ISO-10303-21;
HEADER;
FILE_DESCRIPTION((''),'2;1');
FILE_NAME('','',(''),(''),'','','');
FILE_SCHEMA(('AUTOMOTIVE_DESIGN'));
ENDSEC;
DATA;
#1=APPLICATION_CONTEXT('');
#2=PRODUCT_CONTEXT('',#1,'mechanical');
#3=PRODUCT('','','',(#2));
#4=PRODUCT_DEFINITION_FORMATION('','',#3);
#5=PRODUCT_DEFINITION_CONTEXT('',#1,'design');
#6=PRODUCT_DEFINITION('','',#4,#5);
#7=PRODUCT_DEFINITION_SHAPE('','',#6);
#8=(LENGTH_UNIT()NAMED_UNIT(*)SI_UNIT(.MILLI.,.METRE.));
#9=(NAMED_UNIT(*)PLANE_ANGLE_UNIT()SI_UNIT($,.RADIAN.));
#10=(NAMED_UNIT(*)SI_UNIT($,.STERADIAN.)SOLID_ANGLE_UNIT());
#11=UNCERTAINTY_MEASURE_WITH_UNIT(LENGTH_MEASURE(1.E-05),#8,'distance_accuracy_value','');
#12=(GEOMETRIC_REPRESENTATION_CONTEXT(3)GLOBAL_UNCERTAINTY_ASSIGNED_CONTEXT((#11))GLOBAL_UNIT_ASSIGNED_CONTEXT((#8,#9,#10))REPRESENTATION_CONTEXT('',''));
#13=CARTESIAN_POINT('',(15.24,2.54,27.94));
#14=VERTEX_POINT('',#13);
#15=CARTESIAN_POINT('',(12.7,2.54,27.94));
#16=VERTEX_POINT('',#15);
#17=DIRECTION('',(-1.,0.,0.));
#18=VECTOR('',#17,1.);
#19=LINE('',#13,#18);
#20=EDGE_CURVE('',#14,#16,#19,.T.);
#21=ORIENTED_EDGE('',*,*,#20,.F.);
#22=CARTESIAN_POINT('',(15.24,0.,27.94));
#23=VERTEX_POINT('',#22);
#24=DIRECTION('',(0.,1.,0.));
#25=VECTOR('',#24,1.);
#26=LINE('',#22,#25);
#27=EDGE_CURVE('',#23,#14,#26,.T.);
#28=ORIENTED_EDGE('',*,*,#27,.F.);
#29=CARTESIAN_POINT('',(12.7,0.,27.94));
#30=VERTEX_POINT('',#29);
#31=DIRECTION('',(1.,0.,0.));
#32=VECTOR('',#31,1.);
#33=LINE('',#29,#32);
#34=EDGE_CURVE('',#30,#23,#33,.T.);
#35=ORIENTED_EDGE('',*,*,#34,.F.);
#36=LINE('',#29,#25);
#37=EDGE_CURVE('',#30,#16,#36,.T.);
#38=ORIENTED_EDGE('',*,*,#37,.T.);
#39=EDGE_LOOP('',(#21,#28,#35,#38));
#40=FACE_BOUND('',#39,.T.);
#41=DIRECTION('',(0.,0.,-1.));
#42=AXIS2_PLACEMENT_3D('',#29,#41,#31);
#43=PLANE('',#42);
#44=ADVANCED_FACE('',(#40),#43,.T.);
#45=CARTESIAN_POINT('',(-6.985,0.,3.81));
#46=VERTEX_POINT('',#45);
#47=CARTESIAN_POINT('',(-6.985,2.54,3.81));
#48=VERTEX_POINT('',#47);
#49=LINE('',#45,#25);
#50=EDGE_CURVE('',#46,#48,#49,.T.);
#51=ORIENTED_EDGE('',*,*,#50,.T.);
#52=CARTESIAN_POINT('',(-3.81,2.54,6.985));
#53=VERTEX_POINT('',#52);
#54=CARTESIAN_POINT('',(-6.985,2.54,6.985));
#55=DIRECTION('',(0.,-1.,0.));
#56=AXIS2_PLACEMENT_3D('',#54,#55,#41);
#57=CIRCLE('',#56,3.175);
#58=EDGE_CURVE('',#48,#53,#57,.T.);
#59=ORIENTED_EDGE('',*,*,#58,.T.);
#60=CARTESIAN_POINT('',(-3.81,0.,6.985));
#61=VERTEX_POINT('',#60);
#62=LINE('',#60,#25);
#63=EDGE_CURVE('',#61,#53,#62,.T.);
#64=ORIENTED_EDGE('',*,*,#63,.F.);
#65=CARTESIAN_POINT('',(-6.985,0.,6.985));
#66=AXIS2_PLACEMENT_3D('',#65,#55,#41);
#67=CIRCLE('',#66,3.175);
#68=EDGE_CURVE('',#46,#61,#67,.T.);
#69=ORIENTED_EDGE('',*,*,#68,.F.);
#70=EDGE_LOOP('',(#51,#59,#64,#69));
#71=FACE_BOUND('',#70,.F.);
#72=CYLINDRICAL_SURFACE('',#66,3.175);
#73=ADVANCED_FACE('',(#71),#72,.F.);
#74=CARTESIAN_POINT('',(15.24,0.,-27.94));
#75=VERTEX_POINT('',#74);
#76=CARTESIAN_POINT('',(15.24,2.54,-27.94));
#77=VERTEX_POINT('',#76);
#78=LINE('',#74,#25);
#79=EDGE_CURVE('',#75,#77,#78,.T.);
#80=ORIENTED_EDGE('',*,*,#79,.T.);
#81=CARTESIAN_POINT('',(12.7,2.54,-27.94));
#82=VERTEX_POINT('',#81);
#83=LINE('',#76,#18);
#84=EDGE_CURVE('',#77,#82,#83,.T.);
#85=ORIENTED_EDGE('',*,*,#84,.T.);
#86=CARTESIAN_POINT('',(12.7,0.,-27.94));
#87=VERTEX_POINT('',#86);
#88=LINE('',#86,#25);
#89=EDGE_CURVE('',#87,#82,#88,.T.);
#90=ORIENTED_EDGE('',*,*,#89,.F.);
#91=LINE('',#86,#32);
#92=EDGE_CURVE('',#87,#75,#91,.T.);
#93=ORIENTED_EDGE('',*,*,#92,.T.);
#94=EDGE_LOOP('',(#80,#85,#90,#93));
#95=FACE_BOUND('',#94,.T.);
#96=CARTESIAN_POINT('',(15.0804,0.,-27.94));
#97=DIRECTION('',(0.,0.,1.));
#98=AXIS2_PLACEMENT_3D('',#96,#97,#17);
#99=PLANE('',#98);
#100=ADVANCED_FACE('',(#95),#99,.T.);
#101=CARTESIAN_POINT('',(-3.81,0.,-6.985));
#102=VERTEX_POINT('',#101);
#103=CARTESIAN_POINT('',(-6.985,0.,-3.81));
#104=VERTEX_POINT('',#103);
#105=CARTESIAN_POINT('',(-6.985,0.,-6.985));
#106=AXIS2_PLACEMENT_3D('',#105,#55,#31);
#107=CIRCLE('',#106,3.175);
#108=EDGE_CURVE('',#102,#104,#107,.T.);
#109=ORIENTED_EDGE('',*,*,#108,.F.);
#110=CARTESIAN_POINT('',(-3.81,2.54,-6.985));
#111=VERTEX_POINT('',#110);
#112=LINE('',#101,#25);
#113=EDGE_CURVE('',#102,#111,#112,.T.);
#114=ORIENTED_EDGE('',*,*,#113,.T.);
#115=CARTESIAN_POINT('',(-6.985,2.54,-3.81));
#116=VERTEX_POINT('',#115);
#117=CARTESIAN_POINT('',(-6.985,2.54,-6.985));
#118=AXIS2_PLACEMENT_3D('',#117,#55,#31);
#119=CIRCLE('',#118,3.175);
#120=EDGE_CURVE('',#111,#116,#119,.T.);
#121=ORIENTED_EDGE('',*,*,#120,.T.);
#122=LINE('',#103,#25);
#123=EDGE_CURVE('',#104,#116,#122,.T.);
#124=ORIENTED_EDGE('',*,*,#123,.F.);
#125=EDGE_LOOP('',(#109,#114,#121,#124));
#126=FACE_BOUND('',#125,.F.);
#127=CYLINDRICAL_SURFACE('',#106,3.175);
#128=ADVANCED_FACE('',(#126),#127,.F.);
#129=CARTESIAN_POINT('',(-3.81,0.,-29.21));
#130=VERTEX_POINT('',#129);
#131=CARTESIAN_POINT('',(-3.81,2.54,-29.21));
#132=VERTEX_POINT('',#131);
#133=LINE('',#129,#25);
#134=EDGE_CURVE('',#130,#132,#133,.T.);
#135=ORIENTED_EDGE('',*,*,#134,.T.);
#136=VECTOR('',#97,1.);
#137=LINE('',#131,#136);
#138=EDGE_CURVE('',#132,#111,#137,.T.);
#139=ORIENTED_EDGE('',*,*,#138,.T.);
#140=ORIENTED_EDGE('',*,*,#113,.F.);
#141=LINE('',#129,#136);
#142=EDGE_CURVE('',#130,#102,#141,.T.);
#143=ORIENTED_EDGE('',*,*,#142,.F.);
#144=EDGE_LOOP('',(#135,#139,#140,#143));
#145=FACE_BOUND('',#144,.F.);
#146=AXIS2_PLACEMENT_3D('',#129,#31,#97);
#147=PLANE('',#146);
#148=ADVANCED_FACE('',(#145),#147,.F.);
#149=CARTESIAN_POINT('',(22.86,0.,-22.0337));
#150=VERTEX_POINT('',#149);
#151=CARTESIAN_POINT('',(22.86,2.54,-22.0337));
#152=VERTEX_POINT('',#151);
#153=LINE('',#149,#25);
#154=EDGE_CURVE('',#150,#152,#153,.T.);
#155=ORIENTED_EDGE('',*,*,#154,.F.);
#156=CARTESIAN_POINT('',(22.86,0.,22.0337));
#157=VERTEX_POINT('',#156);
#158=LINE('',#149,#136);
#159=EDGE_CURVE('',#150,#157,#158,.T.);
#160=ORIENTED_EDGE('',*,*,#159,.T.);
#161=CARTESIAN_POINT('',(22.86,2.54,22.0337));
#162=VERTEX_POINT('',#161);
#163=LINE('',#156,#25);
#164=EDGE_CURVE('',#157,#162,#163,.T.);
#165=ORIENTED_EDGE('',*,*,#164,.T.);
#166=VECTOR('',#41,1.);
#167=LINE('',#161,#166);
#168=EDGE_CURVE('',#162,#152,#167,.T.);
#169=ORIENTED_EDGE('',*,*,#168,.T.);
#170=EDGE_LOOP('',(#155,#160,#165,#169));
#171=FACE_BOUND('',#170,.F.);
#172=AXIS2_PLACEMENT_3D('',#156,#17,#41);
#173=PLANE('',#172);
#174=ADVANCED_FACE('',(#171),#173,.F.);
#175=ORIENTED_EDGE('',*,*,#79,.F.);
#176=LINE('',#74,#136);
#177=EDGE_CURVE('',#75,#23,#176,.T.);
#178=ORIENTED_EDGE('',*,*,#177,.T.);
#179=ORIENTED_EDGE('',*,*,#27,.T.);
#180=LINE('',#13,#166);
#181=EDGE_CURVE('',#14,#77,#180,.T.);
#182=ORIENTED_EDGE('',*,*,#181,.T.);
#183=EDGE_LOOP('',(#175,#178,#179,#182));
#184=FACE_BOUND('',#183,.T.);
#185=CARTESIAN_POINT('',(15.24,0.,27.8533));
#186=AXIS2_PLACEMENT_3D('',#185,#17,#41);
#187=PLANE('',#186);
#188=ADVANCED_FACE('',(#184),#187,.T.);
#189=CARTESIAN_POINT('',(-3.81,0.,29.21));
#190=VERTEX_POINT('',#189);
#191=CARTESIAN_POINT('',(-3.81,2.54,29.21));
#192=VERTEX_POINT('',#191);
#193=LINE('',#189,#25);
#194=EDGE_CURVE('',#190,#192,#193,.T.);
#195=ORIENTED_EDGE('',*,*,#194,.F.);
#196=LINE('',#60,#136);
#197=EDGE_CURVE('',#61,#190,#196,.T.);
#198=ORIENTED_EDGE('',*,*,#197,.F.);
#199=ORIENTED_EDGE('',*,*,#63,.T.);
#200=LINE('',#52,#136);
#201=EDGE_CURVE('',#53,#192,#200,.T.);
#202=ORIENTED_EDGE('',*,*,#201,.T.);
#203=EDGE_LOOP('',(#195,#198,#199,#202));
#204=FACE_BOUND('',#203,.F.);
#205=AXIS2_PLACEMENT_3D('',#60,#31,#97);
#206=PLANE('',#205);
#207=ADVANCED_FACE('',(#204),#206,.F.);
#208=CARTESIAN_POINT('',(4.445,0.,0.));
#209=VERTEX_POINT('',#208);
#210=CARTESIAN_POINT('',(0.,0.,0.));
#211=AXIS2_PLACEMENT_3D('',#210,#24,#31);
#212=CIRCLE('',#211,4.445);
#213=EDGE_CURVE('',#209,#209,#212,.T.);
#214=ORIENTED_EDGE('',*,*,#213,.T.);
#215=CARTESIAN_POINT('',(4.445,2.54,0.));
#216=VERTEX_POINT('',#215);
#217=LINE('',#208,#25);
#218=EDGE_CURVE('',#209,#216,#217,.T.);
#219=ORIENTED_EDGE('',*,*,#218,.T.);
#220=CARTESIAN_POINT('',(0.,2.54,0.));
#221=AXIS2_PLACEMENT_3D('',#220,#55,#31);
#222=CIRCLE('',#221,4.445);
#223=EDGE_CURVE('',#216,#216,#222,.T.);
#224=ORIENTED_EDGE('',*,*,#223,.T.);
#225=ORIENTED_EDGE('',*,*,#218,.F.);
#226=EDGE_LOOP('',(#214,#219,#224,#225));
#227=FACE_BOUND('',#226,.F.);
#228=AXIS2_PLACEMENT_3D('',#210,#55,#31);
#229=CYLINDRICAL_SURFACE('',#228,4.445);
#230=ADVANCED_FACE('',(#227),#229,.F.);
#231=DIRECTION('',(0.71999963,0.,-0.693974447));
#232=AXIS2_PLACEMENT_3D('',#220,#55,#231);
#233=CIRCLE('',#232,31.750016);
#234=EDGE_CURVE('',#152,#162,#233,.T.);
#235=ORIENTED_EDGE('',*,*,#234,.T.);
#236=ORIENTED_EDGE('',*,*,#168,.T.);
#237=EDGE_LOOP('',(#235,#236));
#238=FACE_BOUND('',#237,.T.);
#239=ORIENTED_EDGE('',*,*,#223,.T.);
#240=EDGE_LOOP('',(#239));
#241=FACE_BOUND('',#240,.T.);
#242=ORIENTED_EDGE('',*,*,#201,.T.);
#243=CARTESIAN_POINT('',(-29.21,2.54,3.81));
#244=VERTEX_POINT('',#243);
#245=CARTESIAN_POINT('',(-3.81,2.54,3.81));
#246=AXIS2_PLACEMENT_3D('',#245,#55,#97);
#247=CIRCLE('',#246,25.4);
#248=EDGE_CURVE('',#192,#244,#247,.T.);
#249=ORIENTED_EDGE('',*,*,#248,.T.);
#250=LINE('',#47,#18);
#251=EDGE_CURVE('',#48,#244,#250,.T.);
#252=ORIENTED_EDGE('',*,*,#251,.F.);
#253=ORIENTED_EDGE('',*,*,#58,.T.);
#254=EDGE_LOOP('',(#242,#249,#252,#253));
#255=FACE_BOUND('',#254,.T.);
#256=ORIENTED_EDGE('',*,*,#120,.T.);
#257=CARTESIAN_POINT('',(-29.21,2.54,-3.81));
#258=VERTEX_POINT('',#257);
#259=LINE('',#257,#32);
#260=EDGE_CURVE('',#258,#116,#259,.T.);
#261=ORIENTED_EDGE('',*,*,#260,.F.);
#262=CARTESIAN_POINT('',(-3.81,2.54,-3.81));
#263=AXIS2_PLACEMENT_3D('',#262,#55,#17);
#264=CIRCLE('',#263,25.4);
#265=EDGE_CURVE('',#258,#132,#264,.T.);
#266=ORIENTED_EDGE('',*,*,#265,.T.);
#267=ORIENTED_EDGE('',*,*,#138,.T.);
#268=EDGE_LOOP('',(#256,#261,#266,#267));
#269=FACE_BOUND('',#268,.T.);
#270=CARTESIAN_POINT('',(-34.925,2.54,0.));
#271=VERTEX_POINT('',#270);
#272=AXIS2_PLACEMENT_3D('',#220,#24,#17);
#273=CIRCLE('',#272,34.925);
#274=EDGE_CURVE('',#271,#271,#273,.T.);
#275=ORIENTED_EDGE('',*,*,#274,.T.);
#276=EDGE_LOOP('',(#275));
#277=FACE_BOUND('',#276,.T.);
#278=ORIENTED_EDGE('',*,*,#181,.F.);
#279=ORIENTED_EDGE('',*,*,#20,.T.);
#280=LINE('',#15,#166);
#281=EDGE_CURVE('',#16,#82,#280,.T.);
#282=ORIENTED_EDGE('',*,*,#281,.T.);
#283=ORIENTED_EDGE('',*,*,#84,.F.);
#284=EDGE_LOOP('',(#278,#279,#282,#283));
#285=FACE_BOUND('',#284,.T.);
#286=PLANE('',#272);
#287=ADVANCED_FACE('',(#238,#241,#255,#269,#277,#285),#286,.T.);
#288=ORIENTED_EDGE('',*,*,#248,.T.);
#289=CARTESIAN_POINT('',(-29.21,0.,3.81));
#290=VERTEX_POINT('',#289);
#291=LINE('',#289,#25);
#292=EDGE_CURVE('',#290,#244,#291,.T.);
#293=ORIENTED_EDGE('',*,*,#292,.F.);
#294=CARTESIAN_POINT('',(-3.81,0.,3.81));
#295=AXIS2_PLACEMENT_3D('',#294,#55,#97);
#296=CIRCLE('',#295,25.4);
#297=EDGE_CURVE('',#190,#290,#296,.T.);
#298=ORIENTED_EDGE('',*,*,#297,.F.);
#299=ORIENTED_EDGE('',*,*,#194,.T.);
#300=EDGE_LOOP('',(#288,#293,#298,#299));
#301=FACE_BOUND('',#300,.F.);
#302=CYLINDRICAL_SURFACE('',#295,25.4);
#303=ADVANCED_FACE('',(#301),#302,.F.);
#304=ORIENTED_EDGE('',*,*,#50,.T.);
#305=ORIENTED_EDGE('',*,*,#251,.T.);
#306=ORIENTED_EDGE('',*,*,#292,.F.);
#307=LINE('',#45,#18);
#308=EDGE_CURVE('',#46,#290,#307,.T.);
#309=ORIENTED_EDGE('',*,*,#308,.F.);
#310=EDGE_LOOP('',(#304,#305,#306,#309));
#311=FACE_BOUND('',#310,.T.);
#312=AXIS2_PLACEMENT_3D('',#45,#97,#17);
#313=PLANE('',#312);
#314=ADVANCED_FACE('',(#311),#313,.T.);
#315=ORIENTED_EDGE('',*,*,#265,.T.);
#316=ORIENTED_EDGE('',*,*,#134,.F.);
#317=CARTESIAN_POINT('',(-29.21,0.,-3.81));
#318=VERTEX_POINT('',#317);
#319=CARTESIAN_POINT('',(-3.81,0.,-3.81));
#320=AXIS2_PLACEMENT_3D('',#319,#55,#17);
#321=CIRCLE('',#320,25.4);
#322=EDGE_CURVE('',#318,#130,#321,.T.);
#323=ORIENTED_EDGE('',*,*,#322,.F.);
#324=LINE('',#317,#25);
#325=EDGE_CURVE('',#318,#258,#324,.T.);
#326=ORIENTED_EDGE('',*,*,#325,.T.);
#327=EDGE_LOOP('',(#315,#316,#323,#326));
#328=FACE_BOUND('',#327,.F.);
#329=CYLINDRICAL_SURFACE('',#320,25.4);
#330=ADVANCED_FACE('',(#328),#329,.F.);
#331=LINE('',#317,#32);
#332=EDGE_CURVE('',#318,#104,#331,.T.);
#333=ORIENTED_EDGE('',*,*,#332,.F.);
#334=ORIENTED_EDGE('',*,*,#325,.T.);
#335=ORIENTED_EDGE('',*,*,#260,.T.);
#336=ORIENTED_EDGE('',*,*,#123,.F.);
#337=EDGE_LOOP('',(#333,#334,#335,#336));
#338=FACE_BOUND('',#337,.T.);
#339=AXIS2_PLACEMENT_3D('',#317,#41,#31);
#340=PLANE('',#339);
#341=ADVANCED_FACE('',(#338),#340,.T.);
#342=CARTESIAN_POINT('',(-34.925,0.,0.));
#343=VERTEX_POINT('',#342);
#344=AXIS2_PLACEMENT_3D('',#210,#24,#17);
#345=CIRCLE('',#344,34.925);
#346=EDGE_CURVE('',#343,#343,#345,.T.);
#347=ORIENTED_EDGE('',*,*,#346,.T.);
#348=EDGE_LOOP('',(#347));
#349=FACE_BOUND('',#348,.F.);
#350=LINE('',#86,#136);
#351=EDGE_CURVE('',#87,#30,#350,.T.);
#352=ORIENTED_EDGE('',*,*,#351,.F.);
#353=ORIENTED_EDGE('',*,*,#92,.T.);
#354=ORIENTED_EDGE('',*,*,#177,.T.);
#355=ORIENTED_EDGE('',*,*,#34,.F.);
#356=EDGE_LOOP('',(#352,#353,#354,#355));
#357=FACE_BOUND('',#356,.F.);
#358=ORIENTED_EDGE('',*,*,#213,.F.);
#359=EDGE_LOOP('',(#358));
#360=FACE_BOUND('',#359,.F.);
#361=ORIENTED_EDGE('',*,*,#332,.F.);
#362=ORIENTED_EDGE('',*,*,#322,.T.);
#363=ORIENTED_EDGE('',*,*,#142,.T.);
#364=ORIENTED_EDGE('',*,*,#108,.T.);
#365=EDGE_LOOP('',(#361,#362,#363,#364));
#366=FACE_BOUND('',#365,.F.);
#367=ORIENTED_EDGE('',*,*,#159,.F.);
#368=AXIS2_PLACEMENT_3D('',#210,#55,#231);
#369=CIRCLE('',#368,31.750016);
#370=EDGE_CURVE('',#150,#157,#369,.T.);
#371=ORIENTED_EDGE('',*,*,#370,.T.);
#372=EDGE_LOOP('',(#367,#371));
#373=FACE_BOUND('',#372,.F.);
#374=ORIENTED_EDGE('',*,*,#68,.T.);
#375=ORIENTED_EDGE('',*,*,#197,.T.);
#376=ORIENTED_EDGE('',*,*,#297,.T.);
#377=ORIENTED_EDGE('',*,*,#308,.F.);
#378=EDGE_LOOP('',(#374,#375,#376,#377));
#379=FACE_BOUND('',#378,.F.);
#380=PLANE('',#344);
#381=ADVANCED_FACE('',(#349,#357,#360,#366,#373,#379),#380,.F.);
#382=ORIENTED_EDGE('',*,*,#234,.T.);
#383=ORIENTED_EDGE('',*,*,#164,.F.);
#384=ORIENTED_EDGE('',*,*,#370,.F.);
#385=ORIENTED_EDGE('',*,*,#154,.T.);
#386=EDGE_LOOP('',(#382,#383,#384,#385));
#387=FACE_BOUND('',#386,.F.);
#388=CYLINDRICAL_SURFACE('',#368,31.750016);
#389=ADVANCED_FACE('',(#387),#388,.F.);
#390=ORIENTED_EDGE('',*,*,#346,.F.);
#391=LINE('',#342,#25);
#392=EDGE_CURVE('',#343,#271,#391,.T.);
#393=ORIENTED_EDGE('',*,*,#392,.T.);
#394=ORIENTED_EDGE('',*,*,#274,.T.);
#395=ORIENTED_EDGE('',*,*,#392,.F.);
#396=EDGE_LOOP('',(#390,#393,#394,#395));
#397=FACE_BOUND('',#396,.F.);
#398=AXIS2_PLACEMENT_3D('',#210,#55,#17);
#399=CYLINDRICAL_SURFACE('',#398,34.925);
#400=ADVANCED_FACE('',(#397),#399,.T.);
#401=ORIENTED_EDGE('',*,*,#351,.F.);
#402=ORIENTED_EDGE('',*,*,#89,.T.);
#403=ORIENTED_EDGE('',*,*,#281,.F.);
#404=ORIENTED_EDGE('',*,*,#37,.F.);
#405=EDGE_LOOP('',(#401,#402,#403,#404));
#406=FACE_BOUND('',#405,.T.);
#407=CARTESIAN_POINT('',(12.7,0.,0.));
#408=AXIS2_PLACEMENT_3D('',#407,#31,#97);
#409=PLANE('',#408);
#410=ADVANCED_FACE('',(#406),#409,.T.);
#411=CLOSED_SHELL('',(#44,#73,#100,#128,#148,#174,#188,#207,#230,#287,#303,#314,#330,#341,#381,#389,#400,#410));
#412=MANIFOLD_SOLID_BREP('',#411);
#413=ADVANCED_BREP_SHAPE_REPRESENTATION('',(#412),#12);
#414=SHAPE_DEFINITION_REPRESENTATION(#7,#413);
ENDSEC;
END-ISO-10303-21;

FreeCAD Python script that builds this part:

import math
import FreeCAD as App
import Part
import Sketcher

V = App.Vector
Q = App.Units.Quantity

doc = App.newDocument("Part")
body = doc.addObject("PartDesign::Body", "Body")

# Sketch on XZ plane
sketch1 = body.newObject("Sketcher::SketchObject", "Sketch")
sketch1.AttachmentSupport = (doc.getObject("XZ_Plane"), [""])
sketch1.MapMode = "FlatFace"
sketch1.addGeometry(Part.Circle(V(0, 0, 0), V(0, 0, 1), 34.925), False)
sketch1.addConstraint([
    Sketcher.Constraint("Coincident", 0, 3, -1, 1),
    Sketcher.Constraint("Diameter", 0, Q("2.75 in")),
])
pad1 = body.newObject("PartDesign::Pad", "Pad")
pad1.Profile = sketch1
pad1.Length = Q("0.1 in")
pad1.Reversed = True

# Sketch on XZ plane
sketch2 = body.newObject("Sketcher::SketchObject", "Sketch001")
sketch2.AttachmentSupport = (doc.getObject("XZ_Plane"), [""])
sketch2.MapMode = "FlatFace"
sketch2.addGeometry([
    Part.Circle(V(0, 0, 0), V(0, 0, 1), 4.445),  # 0
    Part.LineSegment(V(22.86, 22.0337, 0), V(22.86, -22.0337, 0)),  # 1
    Part.ArcOfCircle(Part.Circle(V(0, 0, 0), V(0, 0, 1), 31.750016), math.radians(-43.94555), math.radians(43.94555)),  # 2
    Part.LineSegment(V(12.7, 27.94, 0), V(12.7, -27.94, 0)),  # 3
    Part.LineSegment(V(12.7, -27.94, 0), V(15.24, -27.94, 0)),  # 4
    Part.LineSegment(V(15.24, -27.94, 0), V(15.24, 27.94, 0)),  # 5
    Part.LineSegment(V(15.24, 27.94, 0), V(12.7, 27.94, 0)),  # 6
    Part.LineSegment(V(-3.81, -29.21, 0), V(-3.81, -6.985, 0)),  # 7
    Part.ArcOfCircle(Part.Circle(V(-6.985, -6.985, 0), V(0, 0, 1), 3.175), math.radians(0), math.radians(90)),  # 8
    Part.LineSegment(V(-6.985, -3.81, 0), V(-29.21, -3.81, 0)),  # 9
    Part.ArcOfCircle(Part.Circle(V(-3.81, -3.81, 0), V(0, 0, 1), 25.4), math.radians(180), math.radians(270)),  # 10
    Part.LineSegment(V(-29.21, 3.81, 0), V(-6.985, 3.81, 0)),  # 11
    Part.ArcOfCircle(Part.Circle(V(-6.985, 6.985, 0), V(0, 0, 1), 3.175), math.radians(-90), math.radians(0)),  # 12
    Part.LineSegment(V(-3.81, 6.985, 0), V(-3.81, 29.21, 0)),  # 13
    Part.ArcOfCircle(Part.Circle(V(-3.81, 3.81, 0), V(0, 0, 1), 25.4), math.radians(90), math.radians(180)),  # 14
], False)
sketch2.addConstraint([
    Sketcher.Constraint("Coincident", 1, 1, 2, 2),
    Sketcher.Constraint("Coincident", 2, 1, 1, 2),
    Sketcher.Constraint("Coincident", 3, 2, 4, 1),
    Sketcher.Constraint("Coincident", 4, 2, 5, 1),
    Sketcher.Constraint("Coincident", 5, 2, 6, 1),
    Sketcher.Constraint("Coincident", 6, 2, 3, 1),
    Sketcher.Constraint("Tangent", 7, 2, 8, 1),
    Sketcher.Constraint("Tangent", 8, 2, 9, 1),
    Sketcher.Constraint("Coincident", 9, 2, 10, 1),
    Sketcher.Constraint("Coincident", 10, 2, 7, 1),
    Sketcher.Constraint("Tangent", 11, 2, 12, 1),
    Sketcher.Constraint("Tangent", 12, 2, 13, 1),
    Sketcher.Constraint("Coincident", 13, 2, 14, 1),
    Sketcher.Constraint("Coincident", 14, 2, 11, 1),
    Sketcher.Constraint("Vertical", 1),
    Sketcher.Constraint("Vertical", 3),
    Sketcher.Constraint("Horizontal", 4),
    Sketcher.Constraint("Vertical", 5),
    Sketcher.Constraint("Horizontal", 6),
    Sketcher.Constraint("Vertical", 7),
    Sketcher.Constraint("Horizontal", 9),
    Sketcher.Constraint("Horizontal", 11),
    Sketcher.Constraint("Vertical", 13),
    Sketcher.Constraint("Coincident", 0, 3, -1, 1),
    Sketcher.Constraint("Coincident", 2, 3, -1, 1),
    Sketcher.Constraint("Equal", 8, 12),
    Sketcher.Constraint("Equal", 10, 14),
    Sketcher.Constraint("Symmetric", 8, 3, 12, 3, -1),
    Sketcher.Constraint("Symmetric", 10, 3, 14, 3, -1),
    Sketcher.Constraint("Horizontal", 10, 3, 8, 2),
    Sketcher.Constraint("Vertical", 14, 3, 7, 2),
    Sketcher.Constraint("Radius", 10, Q("1 in")),
    Sketcher.Constraint("Diameter", 0, Q("0.35 in")),
    Sketcher.Constraint("DistanceX", 4, 1, 4, 2, Q("0.1 in")),
    Sketcher.Constraint("DistanceY", 3, 2, 3, 1, Q("2.2 in")),
    Sketcher.Constraint("Radius", 8, Q("0.125 in")),
    Sketcher.Constraint("DistanceY", 3, 2, -1, 1, Q("1.1 in")),
    Sketcher.Constraint("DistanceX", -1, 1, 4, 2, Q("0.6 in")),
    Sketcher.Constraint("DistanceY", 10, 3, 14, 3, Q("0.3 in")),
    Sketcher.Constraint("DistanceX", 4, 2, 2, 1, Q("0.3 in")),
    Sketcher.Constraint("DistanceX", 10, 3, -1, 1, Q("0.15 in")),
    Sketcher.Constraint("Radius", 2, Q("1.25 in")),
])
pocket1 = body.newObject("PartDesign::Pocket", "Pocket")
pocket1.Profile = sketch2
pocket1.Length = Q("0.1 in")

doc.recompute()
